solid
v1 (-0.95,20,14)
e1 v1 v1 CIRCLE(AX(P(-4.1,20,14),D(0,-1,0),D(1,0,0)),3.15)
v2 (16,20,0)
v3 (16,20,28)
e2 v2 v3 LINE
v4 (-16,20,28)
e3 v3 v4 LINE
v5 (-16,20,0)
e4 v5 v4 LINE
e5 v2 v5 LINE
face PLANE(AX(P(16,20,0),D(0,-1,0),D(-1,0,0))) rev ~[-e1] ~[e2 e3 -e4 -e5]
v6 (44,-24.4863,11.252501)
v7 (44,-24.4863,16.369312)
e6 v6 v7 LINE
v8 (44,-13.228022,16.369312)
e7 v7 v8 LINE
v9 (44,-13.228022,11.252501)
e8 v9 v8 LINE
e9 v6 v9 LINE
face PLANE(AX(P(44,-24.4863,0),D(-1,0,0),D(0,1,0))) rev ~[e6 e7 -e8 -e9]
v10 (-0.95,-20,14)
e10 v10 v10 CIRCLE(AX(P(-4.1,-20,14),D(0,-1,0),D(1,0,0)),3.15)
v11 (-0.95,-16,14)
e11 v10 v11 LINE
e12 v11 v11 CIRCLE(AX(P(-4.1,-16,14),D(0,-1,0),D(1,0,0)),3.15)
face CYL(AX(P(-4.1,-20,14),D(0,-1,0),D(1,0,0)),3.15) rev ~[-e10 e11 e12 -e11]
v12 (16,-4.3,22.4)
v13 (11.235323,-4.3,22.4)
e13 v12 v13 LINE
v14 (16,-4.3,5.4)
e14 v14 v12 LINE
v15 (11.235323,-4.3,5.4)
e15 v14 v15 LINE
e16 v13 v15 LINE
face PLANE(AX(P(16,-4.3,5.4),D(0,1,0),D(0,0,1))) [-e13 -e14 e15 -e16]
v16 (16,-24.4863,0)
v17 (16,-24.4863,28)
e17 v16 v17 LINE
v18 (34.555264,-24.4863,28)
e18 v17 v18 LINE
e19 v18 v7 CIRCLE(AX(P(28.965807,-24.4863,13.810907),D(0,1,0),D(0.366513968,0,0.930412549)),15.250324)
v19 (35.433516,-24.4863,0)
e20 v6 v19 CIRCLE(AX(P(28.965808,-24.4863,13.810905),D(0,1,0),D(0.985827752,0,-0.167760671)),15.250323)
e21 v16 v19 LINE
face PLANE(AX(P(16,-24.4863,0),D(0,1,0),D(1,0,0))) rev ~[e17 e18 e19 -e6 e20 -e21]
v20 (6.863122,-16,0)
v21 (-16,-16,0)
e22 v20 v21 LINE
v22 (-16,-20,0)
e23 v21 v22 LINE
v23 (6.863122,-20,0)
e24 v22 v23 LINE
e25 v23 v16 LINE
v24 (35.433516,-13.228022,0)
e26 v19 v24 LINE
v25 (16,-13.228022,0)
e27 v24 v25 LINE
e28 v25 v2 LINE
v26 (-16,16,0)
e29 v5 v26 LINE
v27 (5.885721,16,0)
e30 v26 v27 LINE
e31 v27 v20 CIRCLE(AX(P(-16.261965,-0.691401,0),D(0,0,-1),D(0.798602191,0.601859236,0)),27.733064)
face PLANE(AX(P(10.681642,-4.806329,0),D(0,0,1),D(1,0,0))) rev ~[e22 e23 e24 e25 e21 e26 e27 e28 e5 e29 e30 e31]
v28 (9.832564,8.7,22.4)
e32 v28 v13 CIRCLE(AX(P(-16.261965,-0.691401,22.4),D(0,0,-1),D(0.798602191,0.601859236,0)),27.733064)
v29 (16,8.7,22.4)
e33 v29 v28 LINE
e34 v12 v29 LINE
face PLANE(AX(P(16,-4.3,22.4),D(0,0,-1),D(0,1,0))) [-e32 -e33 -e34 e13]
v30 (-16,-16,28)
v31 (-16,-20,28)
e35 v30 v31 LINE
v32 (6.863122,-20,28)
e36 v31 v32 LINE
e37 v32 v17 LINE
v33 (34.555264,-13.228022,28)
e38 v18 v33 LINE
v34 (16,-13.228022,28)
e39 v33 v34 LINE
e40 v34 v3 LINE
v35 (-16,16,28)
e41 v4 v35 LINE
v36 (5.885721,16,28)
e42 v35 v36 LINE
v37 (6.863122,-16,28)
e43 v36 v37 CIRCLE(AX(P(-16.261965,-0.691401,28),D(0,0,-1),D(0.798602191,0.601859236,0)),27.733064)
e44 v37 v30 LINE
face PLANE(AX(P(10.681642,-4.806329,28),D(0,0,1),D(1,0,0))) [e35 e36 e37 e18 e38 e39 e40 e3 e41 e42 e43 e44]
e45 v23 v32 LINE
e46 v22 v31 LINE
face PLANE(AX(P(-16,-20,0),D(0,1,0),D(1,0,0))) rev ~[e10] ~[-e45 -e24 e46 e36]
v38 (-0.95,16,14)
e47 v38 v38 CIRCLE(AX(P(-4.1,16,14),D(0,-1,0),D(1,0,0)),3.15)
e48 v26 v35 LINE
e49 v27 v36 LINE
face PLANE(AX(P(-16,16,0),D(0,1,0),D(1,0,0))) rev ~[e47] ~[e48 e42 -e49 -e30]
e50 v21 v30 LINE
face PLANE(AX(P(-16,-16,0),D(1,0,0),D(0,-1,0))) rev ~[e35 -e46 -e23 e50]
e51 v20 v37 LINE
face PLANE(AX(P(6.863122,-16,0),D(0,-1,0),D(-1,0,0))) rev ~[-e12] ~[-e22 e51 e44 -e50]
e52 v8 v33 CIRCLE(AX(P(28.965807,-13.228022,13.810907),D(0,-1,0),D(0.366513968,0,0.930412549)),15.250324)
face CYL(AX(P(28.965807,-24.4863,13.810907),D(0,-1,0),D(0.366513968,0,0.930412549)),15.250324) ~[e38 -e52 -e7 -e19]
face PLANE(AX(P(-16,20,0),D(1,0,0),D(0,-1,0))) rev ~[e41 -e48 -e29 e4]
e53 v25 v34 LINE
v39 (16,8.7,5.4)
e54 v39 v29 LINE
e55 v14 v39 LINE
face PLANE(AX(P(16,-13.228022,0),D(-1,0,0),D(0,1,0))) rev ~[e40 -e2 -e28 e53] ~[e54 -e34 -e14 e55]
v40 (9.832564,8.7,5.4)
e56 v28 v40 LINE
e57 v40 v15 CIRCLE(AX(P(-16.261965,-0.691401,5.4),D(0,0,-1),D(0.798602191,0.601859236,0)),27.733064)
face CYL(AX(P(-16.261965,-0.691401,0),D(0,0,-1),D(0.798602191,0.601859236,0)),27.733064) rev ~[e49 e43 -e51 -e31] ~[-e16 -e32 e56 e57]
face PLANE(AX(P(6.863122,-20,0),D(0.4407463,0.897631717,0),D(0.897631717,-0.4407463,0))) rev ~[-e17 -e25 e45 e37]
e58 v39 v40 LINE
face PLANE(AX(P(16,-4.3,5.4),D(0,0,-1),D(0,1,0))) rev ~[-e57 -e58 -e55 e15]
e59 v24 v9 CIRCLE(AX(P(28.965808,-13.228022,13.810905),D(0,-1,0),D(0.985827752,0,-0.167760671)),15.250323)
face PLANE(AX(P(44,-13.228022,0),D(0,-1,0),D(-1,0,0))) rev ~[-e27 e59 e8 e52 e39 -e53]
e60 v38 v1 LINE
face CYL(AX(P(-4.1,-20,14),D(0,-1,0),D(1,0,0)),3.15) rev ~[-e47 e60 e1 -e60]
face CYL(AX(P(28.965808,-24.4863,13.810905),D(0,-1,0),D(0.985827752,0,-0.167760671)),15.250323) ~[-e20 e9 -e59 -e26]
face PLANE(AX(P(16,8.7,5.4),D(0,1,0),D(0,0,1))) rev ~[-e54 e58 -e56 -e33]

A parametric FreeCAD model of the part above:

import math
import FreeCAD as App
import Part
import Sketcher

doc = App.newDocument("Part")
body = doc.addObject("PartDesign::Body", "Body")

# Sketch on XY plane
sketch1 = doc.addObject("Sketcher::SketchObject", "Sketch")
body.addObject(sketch1)
sketch1.AttachmentSupport = (doc.XY_Plane, [""])
sketch1.MapMode = "FlatFace"
sketch1.addGeometry(Part.LineSegment(App.Vector(16, 20, 0), App.Vector(-16, 20, 0)), False)
sketch1.addGeometry(Part.LineSegment(App.Vector(-16, 20, 0), App.Vector(-16, 16, 0)), False)
sketch1.addGeometry(Part.LineSegment(App.Vector(-16, 16, 0), App.Vector(5.885721, 16, 0)), False)
sketch1.addGeometry(Part.ArcOfCircle(Part.Circle(App.Vector(-16.261965, -0.691401, 0), App.Vector(0, 0, 1), 27.733064), math.radians(-33.5042), math.radians(37.003172)), False)
sketch1.addGeometry(Part.LineSegment(App.Vector(6.863122, -16, 0), App.Vector(-16, -16, 0)), False)
sketch1.addGeometry(Part.LineSegment(App.Vector(-16, -16, 0), App.Vector(-16, -20, 0)), False)
sketch1.addGeometry(Part.LineSegment(App.Vector(-16, -20, 0), App.Vector(6.863122, -20, 0)), False)
sketch1.addGeometry(Part.LineSegment(App.Vector(6.863122, -20, 0), App.Vector(16, -24.4863, 0)), False)
sketch1.addGeometry(Part.LineSegment(App.Vector(16, -24.4863, 0), App.Vector(44, -24.4863, 0)), False)
sketch1.addGeometry(Part.LineSegment(App.Vector(44, -24.4863, 0), App.Vector(44, -13.228022, 0)), False)
sketch1.addGeometry(Part.LineSegment(App.Vector(44, -13.228022, 0), App.Vector(16, -13.228022, 0)), False)
sketch1.addGeometry(Part.LineSegment(App.Vector(16, -13.228022, 0), App.Vector(16, 20, 0)), False)
sketch1.addConstraint(Sketcher.Constraint("Coincident", 0, 2, 1, 1))
sketch1.addConstraint(Sketcher.Constraint("Coincident", 1, 2, 2, 1))
sketch1.addConstraint(Sketcher.Constraint("Coincident", 2, 2, 3, 2))
sketch1.addConstraint(Sketcher.Constraint("Coincident", 3, 1, 4, 1))
sketch1.addConstraint(Sketcher.Constraint("Coincident", 4, 2, 5, 1))
sketch1.addConstraint(Sketcher.Constraint("Coincident", 5, 2, 6, 1))
sketch1.addConstraint(Sketcher.Constraint("Coincident", 6, 2, 7, 1))
sketch1.addConstraint(Sketcher.Constraint("Coincident", 7, 2, 8, 1))
sketch1.addConstraint(Sketcher.Constraint("Coincident", 8, 2, 9, 1))
sketch1.addConstraint(Sketcher.Constraint("Coincident", 9, 2, 10, 1))
sketch1.addConstraint(Sketcher.Constraint("Coincident", 10, 2, 11, 1))
sketch1.addConstraint(Sketcher.Constraint("Coincident", 11, 2, 0, 1))
sketch1.addConstraint(Sketcher.Constraint("Horizontal", 0))
sketch1.addConstraint(Sketcher.Constraint("Vertical", 1))
sketch1.addConstraint(Sketcher.Constraint("Horizontal", 2))
sketch1.addConstraint(Sketcher.Constraint("Horizontal", 4))
sketch1.addConstraint(Sketcher.Constraint("Vertical", 5))
sketch1.addConstraint(Sketcher.Constraint("Horizontal", 6))
sketch1.addConstraint(Sketcher.Constraint("Horizontal", 8))
sketch1.addConstraint(Sketcher.Constraint("Vertical", 9))
sketch1.addConstraint(Sketcher.Constraint("Horizontal", 10))
sketch1.addConstraint(Sketcher.Constraint("Vertical", 11))
sketch1.addConstraint(Sketcher.Constraint("Symmetric", 5, 2, 11, 2, -1, 1))
sketch1.addConstraint(Sketcher.Constraint("Symmetric", 1, 2, 4, 2, -1))
sketch1.addConstraint(Sketcher.Constraint("Vertical", 3, 1, 6, 2))
sketch1.addConstraint(Sketcher.Constraint("Vertical", 7, 2, 10, 2))
sketch1.addConstraint(Sketcher.Constraint("DistanceX", 0, 2, 0, 1, 32.0))
sketch1.addConstraint(Sketcher.Constraint("DistanceX", 8, 1, 8, 2, 28.0))
sketch1.addConstraint(Sketcher.Constraint("DistanceY", 1, 2, 1, 1, 4.0))
sketch1.addConstraint(Sketcher.Constraint("DistanceY", -1, 1, 0, 2, 20.0))
sketch1.addConstraint(Sketcher.Constraint("Radius", 3, 27.733064))
sketch1.addConstraint(Sketcher.Constraint("DistanceX", 2, 1, 2, 2, 21.885721))
sketch1.addConstraint(Sketcher.Constraint("DistanceY", 9, 1, 9, 2, 11.258278))
sketch1.addConstraint(Sketcher.Constraint("DistanceY", 11, 1, 11, 2, 33.228022))
sketch1.addConstraint(Sketcher.Constraint("DistanceY", 3, 3, -1, 1, 0.691401))
pad1 = doc.addObject("PartDesign::Pad", "Pad")
body.addObject(pad1)
pad1.Profile = sketch1
pad1.Length = 28

# Sketch on XZ plane
sketch2 = doc.addObject("Sketcher::SketchObject", "Sketch001")
body.addObject(sketch2)
sketch2.AttachmentSupport = (doc.XZ_Plane, [""])
sketch2.MapMode = "FlatFace"
sketch2.AttachmentOffset = App.Placement(App.Vector(0, 0, 20), App.Rotation())
sketch2.addGeometry(Part.Circle(App.Vector(-4.1, 14, 0), App.Vector(0, 0, 1), 3.15), False)
sketch2.addConstraint(Sketcher.Constraint("Diameter", 0, 6.3))
sketch2.addConstraint(Sketcher.Constraint("DistanceY", -1, 1, 0, 3, 14.0))
sketch2.addConstraint(Sketcher.Constraint("DistanceX", 0, 3, -1, 1, 4.1))
pocket1 = doc.addObject("PartDesign::Pocket", "Pocket")
body.addObject(pocket1)
pocket1.Profile = sketch2
pocket1.Type = "ThroughAll"

# Sketch on YZ plane
sketch3 = doc.addObject("Sketcher::SketchObject", "Sketch002")
body.addObject(sketch3)
sketch3.AttachmentSupport = (doc.YZ_Plane, [""])
sketch3.MapMode = "FlatFace"
sketch3.AttachmentOffset = App.Placement(App.Vector(0, 0, 16), App.Rotation())
sketch3.addGeometry(Part.LineSegment(App.Vector(-4.3, 22.4, 0), App.Vector(-4.3, 5.4, 0)), False)
sketch3.addGeometry(Part.LineSegment(App.Vector(-4.3, 5.4, 0), App.Vector(8.7, 5.4, 0)), False)
sketch3.addGeometry(Part.LineSegment(App.Vector(8.7, 5.4, 0), App.Vector(8.7, 22.4, 0)), False)
sketch3.addGeometry(Part.LineSegment(App.Vector(8.7, 22.4, 0), App.Vector(-4.3, 22.4, 0)), False)
sketch3.addConstraint(Sketcher.Constraint("Coincident", 0, 2, 1, 1))
sketch3.addConstraint(Sketcher.Constraint("Coincident", 1, 2, 2, 1))
sketch3.addConstraint(Sketcher.Constraint("Coincident", 2, 2, 3, 1))
sketch3.addConstraint(Sketcher.Constraint("Coincident", 3, 2, 0, 1))
sketch3.addConstraint(Sketcher.Constraint("Vertical", 0))
sketch3.addConstraint(Sketcher.Constraint("Horizontal", 1))
sketch3.addConstraint(Sketcher.Constraint("Vertical", 2))
sketch3.addConstraint(Sketcher.Constraint("Horizontal", 3))
sketch3.addConstraint(Sketcher.Constraint("DistanceX", 1, 1, 1, 2, 13.0))
sketch3.addConstraint(Sketcher.Constraint("DistanceY", 0, 2, 0, 1, 17.0))
sketch3.addConstraint(Sketcher.Constraint("DistanceX", 0, 2, -1, 1, 4.3))
sketch3.addConstraint(Sketcher.Constraint("DistanceY", -1, 1, 0, 2, 5.4))
pocket2 = doc.addObject("PartDesign::Pocket", "Pocket001")
body.addObject(pocket2)
pocket2.Profile = sketch3
pocket2.Type = "ThroughAll"

# Sketch on XZ plane
sketch4 = doc.addObject("Sketcher::SketchObject", "Sketch003")
body.addObject(sketch4)
sketch4.AttachmentSupport = (doc.XZ_Plane, [""])
sketch4.MapMode = "FlatFace"
sketch4.AttachmentOffset = App.Placement(App.Vector(0, 0, 24.4863), App.Rotation())
sketch4.addGeometry(Part.ArcOfCircle(Part.Circle(App.Vector(28.965807, 13.810907, 0), App.Vector(0, 0, 1), 15.250324), math.radians(9.657647), math.radians(68.499215)), False)
sketch4.addGeometry(Part.LineSegment(App.Vector(44, 16.369312, 0), App.Vector(44, 28, 0)), False)
sketch4.addGeometry(Part.LineSegment(App.Vector(44, 28, 0), App.Vector(34.555264, 28, 0)), False)
sketch4.addGeometry(Part.ArcOfCircle(Part.Circle(App.Vector(28.965808, 13.810905, 0), App.Vector(0, 0, 1), 15.250323), math.radians(-64.906101), math.radians(-9.657645)), False)
sketch4.addGeometry(Part.LineSegment(App.Vector(35.433516, 0, 0), App.Vector(44, 0, 0)), False)
sketch4.addGeometry(Part.LineSegment(App.Vector(44, 0, 0), App.Vector(44, 11.252501, 0)), False)
sketch4.addConstraint(Sketcher.Constraint("Coincident", 0, 1, 1, 1))
sketch4.addConstraint(Sketcher.Constraint("Coincident", 1, 2, 2, 1))
sketch4.addConstraint(Sketcher.Constraint("Coincident", 2, 2, 0, 2))
sketch4.addConstraint(Sketcher.Constraint("Coincident", 3, 1, 4, 1))
sketch4.addConstraint(Sketcher.Constraint("Coincident", 4, 2, 5, 1))
sketch4.addConstraint(Sketcher.Constraint("Coincident", 5, 2, 3, 2))
sketch4.addConstraint(Sketcher.Constraint("Vertical", 1))
sketch4.addConstraint(Sketcher.Constraint("Horizontal", 2))
sketch4.addConstraint(Sketcher.Constraint("Horizontal", 4))
sketch4.addConstraint(Sketcher.Constraint("Vertical", 5))
sketch4.addConstraint(Sketcher.Constraint("Coincident", 3, 3, 0, 3))
sketch4.addConstraint(Sketcher.Constraint("Equal", 0, 3))
sketch4.addConstraint(Sketcher.Constraint("PointOnObject", 3, 1, -1))
sketch4.addConstraint(Sketcher.Constraint("Vertical", 1, 2, 4, 2))
sketch4.addConstraint(Sketcher.Constraint("DistanceX", -1, 1, 0, 1, 44.0))
sketch4.addConstraint(Sketcher.Constraint("DistanceY", -1, 1, 1, 2, 28.0))
sketch4.addConstraint(Sketcher.Constraint("DistanceY", 5, 1, 5, 2, 11.252501))
sketch4.addConstraint(Sketcher.Constraint("Radius", 0, 15.250324))
sketch4.addConstraint(Sketcher.Constraint("DistanceX", 2, 2, 2, 1, 9.444736))
pocket3 = doc.addObject("PartDesign::Pocket", "Pocket002")
body.addObject(pocket3)
pocket3.Profile = sketch4
pocket3.Type = "ThroughAll"

doc.recompute()
